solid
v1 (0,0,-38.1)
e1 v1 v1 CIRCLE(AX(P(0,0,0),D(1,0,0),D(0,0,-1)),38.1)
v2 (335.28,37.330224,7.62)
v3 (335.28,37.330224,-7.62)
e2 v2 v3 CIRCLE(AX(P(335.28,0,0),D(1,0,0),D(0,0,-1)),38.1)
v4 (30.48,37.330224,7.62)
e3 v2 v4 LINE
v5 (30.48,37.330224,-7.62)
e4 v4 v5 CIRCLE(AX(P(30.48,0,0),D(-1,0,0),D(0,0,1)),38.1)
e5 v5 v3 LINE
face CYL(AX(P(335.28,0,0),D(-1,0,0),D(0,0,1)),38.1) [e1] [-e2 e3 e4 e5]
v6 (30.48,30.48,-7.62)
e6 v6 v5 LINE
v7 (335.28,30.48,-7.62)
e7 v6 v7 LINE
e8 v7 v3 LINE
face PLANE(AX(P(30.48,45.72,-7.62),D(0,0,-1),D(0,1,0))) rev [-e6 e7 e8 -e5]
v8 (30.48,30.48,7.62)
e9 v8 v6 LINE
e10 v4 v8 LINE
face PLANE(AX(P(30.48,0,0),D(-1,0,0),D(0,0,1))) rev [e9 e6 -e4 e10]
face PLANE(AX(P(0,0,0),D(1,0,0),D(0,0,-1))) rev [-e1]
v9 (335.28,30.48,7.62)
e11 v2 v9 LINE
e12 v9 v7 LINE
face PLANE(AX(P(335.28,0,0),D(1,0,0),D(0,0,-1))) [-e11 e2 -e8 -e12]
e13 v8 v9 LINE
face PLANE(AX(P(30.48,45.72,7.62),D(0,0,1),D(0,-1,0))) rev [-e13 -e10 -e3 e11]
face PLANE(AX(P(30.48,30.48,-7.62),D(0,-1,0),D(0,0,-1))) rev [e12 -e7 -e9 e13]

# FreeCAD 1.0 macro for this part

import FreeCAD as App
import Part
import Sketcher
Q = App.Units.Quantity


def add_polygon(sketch, points):
    """Adds a closed chain of lines whose ends are joined by coincident constraints."""
    first, n = sketch.GeometryCount, len(points)
    for a, b in zip(points, points[1:] + points[:1]):
        sketch.addGeometry(Part.LineSegment(App.Vector(*a, 0), App.Vector(*b, 0)), False)
    for i in range(n):
        sketch.addConstraint(Sketcher.Constraint("Coincident", first + i, 2, first + (i + 1) % n, 1))

doc = App.newDocument("Part")
body = doc.addObject("PartDesign::Body", "Body")

sketch1 = doc.addObject("Sketcher::SketchObject", "Sketch")
body.addObject(sketch1)
sketch1.AttachmentSupport = (doc.YZ_Plane, [""])
sketch1.MapMode = "FlatFace"
sketch1.addGeometry(Part.Circle(App.Vector(0, 0, 0), App.Vector(0, 0, 1), 38), False)
sketch1.addConstraint(Sketcher.Constraint("Coincident", 0, 3, -1, 1))
sketch1.addConstraint(Sketcher.Constraint("Diameter", 0, Q("3 in")))
pad1 = doc.addObject("PartDesign::Pad", "Pad")
body.addObject(pad1)
pad1.Profile = sketch1
pad1.Length = Q("13.2 in")

sketch2 = doc.addObject("Sketcher::SketchObject", "Sketch001")
body.addObject(sketch2)
sketch2.AttachmentSupport = (doc.YZ_Plane, [""])
sketch2.MapMode = "FlatFace"
sketch2.AttachmentOffset = App.Placement(App.Vector(0, 0, 13.2 * 25.4), App.Rotation())
add_polygon(sketch2, [(46, 8), (30, 8), (30, -8), (46, -8)])
sketch2.addConstraint(Sketcher.Constraint("Horizontal", 0))
sketch2.addConstraint(Sketcher.Constraint("Vertical", 1))
sketch2.addConstraint(Sketcher.Constraint("Horizontal", 2))
sketch2.addConstraint(Sketcher.Constraint("Vertical", 3))
sketch2.addConstraint(Sketcher.Constraint("Equal", 2, 1))
sketch2.addConstraint(Sketcher.Constraint("DistanceX", 0, 2, 0, 1, Q("0.6 in")))
sketch2.addConstraint(Sketcher.Constraint("DistanceX", -1, 1, 0, 2, Q("1.2 in")))
sketch2.addConstraint(Sketcher.Constraint("DistanceY", -1, 1, 0, 2, Q("0.3 in")))
pocket1 = doc.addObject("PartDesign::Pocket", "Pocket")
body.addObject(pocket1)
pocket1.Profile = sketch2
pocket1.Length = Q("12 in")

doc.recompute()
